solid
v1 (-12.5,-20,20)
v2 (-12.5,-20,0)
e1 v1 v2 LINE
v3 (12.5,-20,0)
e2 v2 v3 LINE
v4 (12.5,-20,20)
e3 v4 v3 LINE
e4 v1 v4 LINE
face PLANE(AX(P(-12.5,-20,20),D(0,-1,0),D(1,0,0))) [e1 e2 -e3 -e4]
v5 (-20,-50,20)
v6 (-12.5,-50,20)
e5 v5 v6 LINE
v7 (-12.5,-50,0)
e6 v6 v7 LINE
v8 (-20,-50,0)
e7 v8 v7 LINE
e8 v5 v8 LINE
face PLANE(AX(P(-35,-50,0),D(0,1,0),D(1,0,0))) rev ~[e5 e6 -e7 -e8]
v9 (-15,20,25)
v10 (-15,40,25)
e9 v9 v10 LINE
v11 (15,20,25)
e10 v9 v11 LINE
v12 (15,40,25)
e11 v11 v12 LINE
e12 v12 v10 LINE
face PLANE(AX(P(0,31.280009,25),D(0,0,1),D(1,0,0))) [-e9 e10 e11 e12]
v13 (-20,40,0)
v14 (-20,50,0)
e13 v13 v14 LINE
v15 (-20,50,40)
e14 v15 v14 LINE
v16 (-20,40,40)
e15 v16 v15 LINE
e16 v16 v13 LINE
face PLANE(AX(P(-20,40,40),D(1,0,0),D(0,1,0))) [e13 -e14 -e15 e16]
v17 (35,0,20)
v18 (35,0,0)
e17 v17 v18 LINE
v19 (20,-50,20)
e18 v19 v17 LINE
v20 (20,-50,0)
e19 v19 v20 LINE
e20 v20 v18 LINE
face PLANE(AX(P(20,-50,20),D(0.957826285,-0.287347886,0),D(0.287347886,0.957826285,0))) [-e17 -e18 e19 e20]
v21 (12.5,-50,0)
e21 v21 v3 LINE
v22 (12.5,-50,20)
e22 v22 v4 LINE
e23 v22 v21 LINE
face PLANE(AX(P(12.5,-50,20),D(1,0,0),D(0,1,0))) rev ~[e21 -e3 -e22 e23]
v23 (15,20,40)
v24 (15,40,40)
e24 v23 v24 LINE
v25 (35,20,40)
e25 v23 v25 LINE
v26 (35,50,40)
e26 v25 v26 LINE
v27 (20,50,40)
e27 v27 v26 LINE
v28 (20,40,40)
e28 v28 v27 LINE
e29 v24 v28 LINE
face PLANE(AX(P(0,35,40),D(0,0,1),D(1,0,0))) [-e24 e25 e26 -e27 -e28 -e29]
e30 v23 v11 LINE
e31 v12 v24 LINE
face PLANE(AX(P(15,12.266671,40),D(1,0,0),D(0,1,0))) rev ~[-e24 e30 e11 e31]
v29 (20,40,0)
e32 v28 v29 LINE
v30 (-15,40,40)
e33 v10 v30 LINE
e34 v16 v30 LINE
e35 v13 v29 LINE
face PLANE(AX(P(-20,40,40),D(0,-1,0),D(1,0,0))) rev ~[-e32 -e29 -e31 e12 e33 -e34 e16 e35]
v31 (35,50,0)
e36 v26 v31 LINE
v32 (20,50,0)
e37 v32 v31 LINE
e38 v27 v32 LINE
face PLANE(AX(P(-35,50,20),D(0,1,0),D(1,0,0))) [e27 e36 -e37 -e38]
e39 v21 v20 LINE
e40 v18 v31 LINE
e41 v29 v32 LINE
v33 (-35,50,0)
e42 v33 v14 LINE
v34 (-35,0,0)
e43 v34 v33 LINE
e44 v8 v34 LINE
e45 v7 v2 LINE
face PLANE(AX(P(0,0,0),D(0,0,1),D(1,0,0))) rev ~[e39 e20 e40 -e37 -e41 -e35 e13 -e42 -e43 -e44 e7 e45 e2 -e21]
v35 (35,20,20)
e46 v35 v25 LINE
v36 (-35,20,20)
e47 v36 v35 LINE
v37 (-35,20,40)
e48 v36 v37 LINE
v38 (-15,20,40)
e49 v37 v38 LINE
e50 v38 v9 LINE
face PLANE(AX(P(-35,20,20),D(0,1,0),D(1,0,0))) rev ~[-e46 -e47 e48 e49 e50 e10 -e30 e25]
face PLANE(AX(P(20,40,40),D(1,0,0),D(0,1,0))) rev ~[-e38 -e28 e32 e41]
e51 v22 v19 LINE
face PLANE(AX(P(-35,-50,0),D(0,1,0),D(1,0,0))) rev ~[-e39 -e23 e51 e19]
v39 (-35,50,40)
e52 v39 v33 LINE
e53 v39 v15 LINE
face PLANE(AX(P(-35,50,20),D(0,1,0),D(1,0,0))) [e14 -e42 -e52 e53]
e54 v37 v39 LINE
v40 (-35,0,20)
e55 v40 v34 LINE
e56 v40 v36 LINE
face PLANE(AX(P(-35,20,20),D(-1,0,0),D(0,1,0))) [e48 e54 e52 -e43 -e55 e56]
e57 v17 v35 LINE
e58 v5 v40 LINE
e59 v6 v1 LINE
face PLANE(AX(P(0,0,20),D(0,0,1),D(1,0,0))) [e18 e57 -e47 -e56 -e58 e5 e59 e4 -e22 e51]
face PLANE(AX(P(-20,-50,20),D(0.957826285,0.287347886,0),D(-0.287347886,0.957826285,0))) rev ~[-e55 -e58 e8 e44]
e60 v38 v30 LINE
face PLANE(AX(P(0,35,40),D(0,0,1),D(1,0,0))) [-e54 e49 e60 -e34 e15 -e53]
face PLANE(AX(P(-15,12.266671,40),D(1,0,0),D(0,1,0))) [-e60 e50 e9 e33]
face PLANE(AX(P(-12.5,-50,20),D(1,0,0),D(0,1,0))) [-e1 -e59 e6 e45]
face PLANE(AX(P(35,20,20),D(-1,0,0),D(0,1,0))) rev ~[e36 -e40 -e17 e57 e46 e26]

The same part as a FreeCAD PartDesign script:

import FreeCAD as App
import Part
import Sketcher

V = App.Vector

doc = App.newDocument("Part")
body = doc.addObject("PartDesign::Body", "Body")

# Sketch on XY plane
sketch1 = doc.addObject("Sketcher::SketchObject", "Sketch")
body.addObject(sketch1)
sketch1.AttachmentSupport = (doc.XY_Plane, [""])
sketch1.MapMode = "FlatFace"
sketch1.addGeometry([
    Part.LineSegment(V(-35, 50, 0), V(-35, -50, 0)),
    Part.LineSegment(V(-35, -50, 0), V(35, -50, 0)),
    Part.LineSegment(V(35, -50, 0), V(35, 50, 0)),
    Part.LineSegment(V(35, 50, 0), V(-35, 50, 0)),
], False)
sketch1.addConstraint([
    Sketcher.Constraint("Coincident", 0, 2, 1, 1),
    Sketcher.Constraint("Coincident", 1, 2, 2, 1),
    Sketcher.Constraint("Coincident", 2, 2, 3, 1),
    Sketcher.Constraint("Coincident", 3, 2, 0, 1),
    Sketcher.Constraint("Vertical", 0),
    Sketcher.Constraint("Horizontal", 1),
    Sketcher.Constraint("Vertical", 2),
    Sketcher.Constraint("Horizontal", 3),
    Sketcher.Constraint("Symmetric", 0, 2, 2, 2, -1, 1),
    Sketcher.Constraint("DistanceX", 1, 1, 1, 2, 70.0),
    Sketcher.Constraint("DistanceY", 0, 2, 0, 1, 100.0),
])
pad1 = doc.addObject("PartDesign::Pad", "Pad")
body.addObject(pad1)
pad1.Profile = sketch1
pad1.Length = 20

# Sketch on XY plane
sketch2 = doc.addObject("Sketcher::SketchObject", "Sketch001")
body.addObject(sketch2)
sketch2.AttachmentSupport = (doc.XY_Plane, [""])
sketch2.MapMode = "FlatFace"
sketch2.AttachmentOffset = App.Placement(V(0, 0, 20), App.Rotation())
sketch2.addGeometry([
    Part.LineSegment(V(35, -50, 0), V(35, 0, 0)),  # 0
    Part.LineSegment(V(35, 0, 0), V(20, -50, 0)),  # 1
    Part.LineSegment(V(20, -50, 0), V(35, -50, 0)),  # 2
    Part.LineSegment(V(-35, 0, 0), V(-35, -50, 0)),  # 3
    Part.LineSegment(V(-35, -50, 0), V(-20, -50, 0)),  # 4
    Part.LineSegment(V(-20, -50, 0), V(-35, 0, 0)),  # 5
], False)
sketch2.addConstraint([
    Sketcher.Constraint("Coincident", 0, 2, 1, 1),
    Sketcher.Constraint("Coincident", 1, 2, 2, 1),
    Sketcher.Constraint("Coincident", 2, 2, 0, 1),
    Sketcher.Constraint("Coincident", 3, 2, 4, 1),
    Sketcher.Constraint("Coincident", 4, 2, 5, 1),
    Sketcher.Constraint("Coincident", 5, 2, 3, 1),
    Sketcher.Constraint("Vertical", 0),
    Sketcher.Constraint("Horizontal", 2),
    Sketcher.Constraint("Vertical", 3),
    Sketcher.Constraint("Horizontal", 4),
    Sketcher.Constraint("Symmetric", 0, 2, 5, 2, -1, 1),
    Sketcher.Constraint("Symmetric", 1, 2, 4, 2, -2),
    Sketcher.Constraint("PointOnObject", 0, 2, -1),
    Sketcher.Constraint("DistanceX", 2, 1, 2, 2, 15.0),
    Sketcher.Constraint("DistanceY", 0, 1, 0, 2, 50.0),
    Sketcher.Constraint("DistanceX", -1, 1, 0, 2, 35.0),
])
pocket1 = doc.addObject("PartDesign::Pocket", "Pocket")
body.addObject(pocket1)
pocket1.Profile = sketch2
pocket1.Type = "ThroughAll"

# Sketch on XY plane
sketch3 = doc.addObject("Sketcher::SketchObject", "Sketch002")
body.addObject(sketch3)
sketch3.AttachmentSupport = (doc.XY_Plane, [""])
sketch3.MapMode = "FlatFace"
sketch3.AttachmentOffset = App.Placement(V(0, 0, 20), App.Rotation())
sketch3.addGeometry([
    Part.LineSegment(V(-12, -20, 0), V(-12, -50, 0)),
    Part.LineSegment(V(-12, -50, 0), V(12, -50, 0)),
    Part.LineSegment(V(12, -50, 0), V(12, -20, 0)),
    Part.LineSegment(V(12, -20, 0), V(-12, -20, 0)),
], False)
sketch3.addConstraint([
    Sketcher.Constraint("Coincident", 0, 2, 1, 1),
    Sketcher.Constraint("Coincident", 1, 2, 2, 1),
    Sketcher.Constraint("Coincident", 2, 2, 3, 1),
    Sketcher.Constraint("Coincident", 3, 2, 0, 1),
    Sketcher.Constraint("Vertical", 0),
    Sketcher.Constraint("Horizontal", 1),
    Sketcher.Constraint("Vertical", 2),
    Sketcher.Constraint("Horizontal", 3),
    Sketcher.Constraint("DistanceX", 1, 1, 1, 2, 25.0),
    Sketcher.Constraint("DistanceY", 0, 2, 0, 1, 30.0),
    Sketcher.Constraint("DistanceY", 0, 2, -1, 1, 50.0),
    Sketcher.Constraint("DistanceX", 0, 2, -1, 1, 12.5),
])
pocket2 = doc.addObject("PartDesign::Pocket", "Pocket001")
body.addObject(pocket2)
pocket2.Profile = sketch3
pocket2.Type = "ThroughAll"

# Sketch on XY plane
sketch4 = doc.addObject("Sketcher::SketchObject", "Sketch003")
body.addObject(sketch4)
sketch4.AttachmentSupport = (doc.XY_Plane, [""])
sketch4.MapMode = "FlatFace"
sketch4.AttachmentOffset = App.Placement(V(0, 0, 20), App.Rotation())
sketch4.addGeometry([
    Part.LineSegment(V(-35, 50, 0), V(-35, 20, 0)),
    Part.LineSegment(V(-35, 20, 0), V(35, 20, 0)),
    Part.LineSegment(V(35, 20, 0), V(35, 50, 0)),
    Part.LineSegment(V(35, 50, 0), V(-35, 50, 0)),
], False)
sketch4.addConstraint([
    Sketcher.Constraint("Coincident", 0, 2, 1, 1),
    Sketcher.Constraint("Coincident", 1, 2, 2, 1),
    Sketcher.Constraint("Coincident", 2, 2, 3, 1),
    Sketcher.Constraint("Coincident", 3, 2, 0, 1),
    Sketcher.Constraint("Vertical", 0),
    Sketcher.Constraint("Horizontal", 1),
    Sketcher.Constraint("Vertical", 2),
    Sketcher.Constraint("Horizontal", 3),
    Sketcher.Constraint("DistanceX", 1, 1, 1, 2, 70.0),
    Sketcher.Constraint("DistanceY", 0, 2, 0, 1, 30.0),
    Sketcher.Constraint("DistanceX", 0, 2, -1, 1, 35.0),
    Sketcher.Constraint("DistanceY", -1, 1, 0, 2, 20.0),
])
pad2 = doc.addObject("PartDesign::Pad", "Pad001")
body.addObject(pad2)
pad2.Profile = sketch4
pad2.Length = 20

# Sketch on XY plane
sketch5 = doc.addObject("Sketcher::SketchObject", "Sketch004")
body.addObject(sketch5)
sketch5.AttachmentSupport = (doc.XY_Plane, [""])
sketch5.MapMode = "FlatFace"
sketch5.AttachmentOffset = App.Placement(V(0, 0, 40), App.Rotation())
sketch5.addGeometry([
    Part.LineSegment(V(-20, 62, 0), V(-20, 40, 0)),
    Part.LineSegment(V(-20, 40, 0), V(20, 40, 0)),
    Part.LineSegment(V(20, 40, 0), V(20, 62, 0)),
    Part.LineSegment(V(20, 62, 0), V(-20, 62, 0)),
], False)
sketch5.addConstraint([
    Sketcher.Constraint("Coincident", 0, 2, 1, 1),
    Sketcher.Constraint("Coincident", 1, 2, 2, 1),
    Sketcher.Constraint("Coincident", 2, 2, 3, 1),
    Sketcher.Constraint("Coincident", 3, 2, 0, 1),
    Sketcher.Constraint("Vertical", 0),
    Sketcher.Constraint("Horizontal", 1),
    Sketcher.Constraint("Vertical", 2),
    Sketcher.Constraint("Horizontal", 3),
    Sketcher.Constraint("DistanceX", 1, 1, 1, 2, 40.0),
    Sketcher.Constraint("DistanceX", 0, 2, -1, 1, 20.0),
    Sketcher.Constraint("DistanceY", -1, 1, 0, 2, 40.0),
    Sketcher.Constraint("DistanceY", 0, 2, 0, 1, 21.64003),
])
pocket3 = doc.addObject("PartDesign::Pocket", "Pocket002")
body.addObject(pocket3)
pocket3.Profile = sketch5
pocket3.Type = "ThroughAll"

# Sketch on XY plane
sketch6 = doc.addObject("Sketcher::SketchObject", "Sketch005")
body.addObject(sketch6)
sketch6.AttachmentSupport = (doc.XY_Plane, [""])
sketch6.MapMode = "FlatFace"
sketch6.AttachmentOffset = App.Placement(V(0, 0, 40), App.Rotation())
sketch6.addGeometry([
    Part.LineSegment(V(-15, 50, 0), V(-15, 12, 0)),
    Part.LineSegment(V(-15, 12, 0), V(15, 12, 0)),
    Part.LineSegment(V(15, 12, 0), V(15, 50, 0)),
    Part.LineSegment(V(15, 50, 0), V(-15, 50, 0)),
], False)
sketch6.addConstraint([
    Sketcher.Constraint("Coincident", 0, 2, 1, 1),
    Sketcher.Constraint("Coincident", 1, 2, 2, 1),
    Sketcher.Constraint("Coincident", 2, 2, 3, 1),
    Sketcher.Constraint("Coincident", 3, 2, 0, 1),
    Sketcher.Constraint("Vertical", 0),
    Sketcher.Constraint("Horizontal", 1),
    Sketcher.Constraint("Vertical", 2),
    Sketcher.Constraint("Horizontal", 3),
    Sketcher.Constraint("DistanceX", 1, 1, 1, 2, 30.0),
    Sketcher.Constraint("DistanceX", 0, 2, -1, 1, 15.0),
    Sketcher.Constraint("DistanceY", 0, 2, 0, 1, 38.026675),
    Sketcher.Constraint("DistanceY", -1, 1, 0, 2, 12.266671),
])
pocket4 = doc.addObject("PartDesign::Pocket", "Pocket003")
body.addObject(pocket4)
pocket4.Profile = sketch6
pocket4.Length = 15

doc.recompute()
